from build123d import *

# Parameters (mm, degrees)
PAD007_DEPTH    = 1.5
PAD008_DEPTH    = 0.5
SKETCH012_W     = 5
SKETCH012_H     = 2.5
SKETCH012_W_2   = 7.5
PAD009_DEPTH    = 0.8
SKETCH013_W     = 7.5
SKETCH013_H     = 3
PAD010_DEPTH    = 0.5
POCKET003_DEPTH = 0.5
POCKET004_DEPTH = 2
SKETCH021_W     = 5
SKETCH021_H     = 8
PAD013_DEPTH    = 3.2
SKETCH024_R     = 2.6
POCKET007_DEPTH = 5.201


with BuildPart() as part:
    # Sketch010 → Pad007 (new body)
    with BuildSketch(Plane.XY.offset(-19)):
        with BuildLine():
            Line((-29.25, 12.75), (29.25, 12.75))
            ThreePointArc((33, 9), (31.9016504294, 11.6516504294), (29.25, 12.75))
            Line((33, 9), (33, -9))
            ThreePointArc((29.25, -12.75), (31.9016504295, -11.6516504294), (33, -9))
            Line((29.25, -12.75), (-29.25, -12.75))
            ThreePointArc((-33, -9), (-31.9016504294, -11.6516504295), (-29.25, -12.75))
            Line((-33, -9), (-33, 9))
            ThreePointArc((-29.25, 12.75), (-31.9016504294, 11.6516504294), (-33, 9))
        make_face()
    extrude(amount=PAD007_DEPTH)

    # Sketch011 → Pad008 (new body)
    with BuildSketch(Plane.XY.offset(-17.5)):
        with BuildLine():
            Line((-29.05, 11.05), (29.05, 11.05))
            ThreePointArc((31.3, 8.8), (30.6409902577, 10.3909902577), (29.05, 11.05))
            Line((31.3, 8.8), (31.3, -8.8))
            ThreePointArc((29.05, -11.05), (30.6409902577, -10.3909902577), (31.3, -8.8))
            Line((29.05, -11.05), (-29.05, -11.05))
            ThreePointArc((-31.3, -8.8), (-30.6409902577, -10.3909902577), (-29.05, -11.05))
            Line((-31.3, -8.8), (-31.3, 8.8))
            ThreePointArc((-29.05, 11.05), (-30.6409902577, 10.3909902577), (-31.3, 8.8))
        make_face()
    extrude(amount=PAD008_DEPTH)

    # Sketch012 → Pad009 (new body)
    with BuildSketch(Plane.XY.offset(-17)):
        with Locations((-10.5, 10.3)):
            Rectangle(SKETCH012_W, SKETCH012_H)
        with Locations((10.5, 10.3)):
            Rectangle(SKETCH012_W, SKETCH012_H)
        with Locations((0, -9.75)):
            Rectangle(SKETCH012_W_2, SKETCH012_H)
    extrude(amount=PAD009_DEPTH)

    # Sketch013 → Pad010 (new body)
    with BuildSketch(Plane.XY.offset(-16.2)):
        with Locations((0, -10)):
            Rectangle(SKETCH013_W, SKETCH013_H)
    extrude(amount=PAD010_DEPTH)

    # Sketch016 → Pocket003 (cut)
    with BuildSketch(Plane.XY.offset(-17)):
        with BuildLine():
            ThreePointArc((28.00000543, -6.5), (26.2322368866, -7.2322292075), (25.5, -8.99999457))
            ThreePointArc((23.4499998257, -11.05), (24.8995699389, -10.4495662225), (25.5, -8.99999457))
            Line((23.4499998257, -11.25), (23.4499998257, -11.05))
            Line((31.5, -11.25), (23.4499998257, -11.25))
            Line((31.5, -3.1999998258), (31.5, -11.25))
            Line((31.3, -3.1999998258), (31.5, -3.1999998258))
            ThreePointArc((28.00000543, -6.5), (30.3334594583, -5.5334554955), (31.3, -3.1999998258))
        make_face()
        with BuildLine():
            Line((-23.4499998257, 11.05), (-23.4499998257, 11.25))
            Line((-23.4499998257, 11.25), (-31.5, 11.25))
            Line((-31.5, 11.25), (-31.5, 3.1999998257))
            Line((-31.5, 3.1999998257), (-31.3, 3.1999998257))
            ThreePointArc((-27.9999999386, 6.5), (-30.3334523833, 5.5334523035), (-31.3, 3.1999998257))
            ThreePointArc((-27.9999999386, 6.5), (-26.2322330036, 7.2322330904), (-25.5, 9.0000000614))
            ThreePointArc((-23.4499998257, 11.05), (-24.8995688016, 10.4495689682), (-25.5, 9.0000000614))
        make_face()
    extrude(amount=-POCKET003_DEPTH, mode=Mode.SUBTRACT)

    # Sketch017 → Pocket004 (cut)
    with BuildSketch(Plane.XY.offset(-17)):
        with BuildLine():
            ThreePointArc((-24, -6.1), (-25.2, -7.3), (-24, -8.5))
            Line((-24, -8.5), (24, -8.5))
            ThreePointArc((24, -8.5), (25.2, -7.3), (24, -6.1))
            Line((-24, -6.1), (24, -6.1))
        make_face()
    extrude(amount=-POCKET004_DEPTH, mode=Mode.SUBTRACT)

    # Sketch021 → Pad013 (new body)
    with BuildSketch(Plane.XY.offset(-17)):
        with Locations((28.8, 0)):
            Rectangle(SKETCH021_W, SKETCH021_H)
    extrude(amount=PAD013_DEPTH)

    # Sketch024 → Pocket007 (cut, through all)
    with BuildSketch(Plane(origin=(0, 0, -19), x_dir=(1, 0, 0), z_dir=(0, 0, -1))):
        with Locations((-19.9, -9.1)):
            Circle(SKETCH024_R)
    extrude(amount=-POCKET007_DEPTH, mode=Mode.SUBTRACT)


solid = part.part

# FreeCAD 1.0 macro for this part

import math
import FreeCAD as App
import Part
import Sketcher
from FreeCAD import Vector
Q = App.Units.Quantity


def add_polygon(sketch, points):
    """Adds a closed chain of lines whose ends are joined by coincident constraints."""
    first, n = sketch.GeometryCount, len(points)
    for a, b in zip(points, points[1:] + points[:1]):
        sketch.addGeometry(Part.LineSegment(App.Vector(*a, 0), App.Vector(*b, 0)), False)
    for i in range(n):
        sketch.addConstraint(Sketcher.Constraint("Coincident", first + i, 2, first + (i + 1) % n, 1))

doc = App.newDocument("Part")
body = doc.addObject("PartDesign::Body", "Body")

# Sketch on XY plane
sketch1 = body.newObject("Sketcher::SketchObject", "Sketch")
sketch1.AttachmentSupport = (doc.getObject("XY_Plane"), [""])
sketch1.MapMode = "FlatFace"
sketch1.AttachmentOffset = App.Placement(Vector(0, 0, -19), App.Rotation())
sketch1.addGeometry(Part.LineSegment(Vector(29.2, 12.8, 0), Vector(-29.2, 12.8, 0)), False)
sketch1.addGeometry(Part.ArcOfCircle(Part.Circle(Vector(-29.2, 9, 0), Vector(0, 0, 1), 3.8), math.radians(90), math.radians(180)), False)
sketch1.addGeometry(Part.LineSegment(Vector(-33, 9, 0), Vector(-33, -9, 0)), False)
sketch1.addGeometry(Part.ArcOfCircle(Part.Circle(Vector(-29.2, -9, 0), Vector(0, 0, 1), 3.8), math.radians(180), math.radians(270)), False)
sketch1.addGeometry(Part.LineSegment(Vector(-29.2, -12.8, 0), Vector(29.2, -12.8, 0)), False)
sketch1.addGeometry(Part.ArcOfCircle(Part.Circle(Vector(29.2, -9, 0), Vector(0, 0, 1), 3.8), math.radians(-90), math.radians(0)), False)
sketch1.addGeometry(Part.LineSegment(Vector(33, -9, 0), Vector(33, 9, 0)), False)
sketch1.addGeometry(Part.ArcOfCircle(Part.Circle(Vector(29.2, 9, 0), Vector(0, 0, 1), 3.8), math.radians(0), math.radians(90)), False)
sketch1.addConstraint(Sketcher.Constraint("Tangent", 0, 2, 1, 1))
sketch1.addConstraint(Sketcher.Constraint("Tangent", 1, 2, 2, 1))
sketch1.addConstraint(Sketcher.Constraint("Tangent", 2, 2, 3, 1))
sketch1.addConstraint(Sketcher.Constraint("Tangent", 3, 2, 4, 1))
sketch1.addConstraint(Sketcher.Constraint("Tangent", 4, 2, 5, 1))
sketch1.addConstraint(Sketcher.Constraint("Tangent", 5, 2, 6, 1))
sketch1.addConstraint(Sketcher.Constraint("Tangent", 6, 2, 7, 1))
sketch1.addConstraint(Sketcher.Constraint("Tangent", 7, 2, 0, 1))
sketch1.addConstraint(Sketcher.Constraint("Horizontal", 0))
sketch1.addConstraint(Sketcher.Constraint("Vertical", 2))
sketch1.addConstraint(Sketcher.Constraint("Horizontal", 4))
sketch1.addConstraint(Sketcher.Constraint("Vertical", 6))
sketch1.addConstraint(Sketcher.Constraint("Equal", 1, 3))
sketch1.addConstraint(Sketcher.Constraint("Equal", 3, 5))
sketch1.addConstraint(Sketcher.Constraint("Equal", 5, 7))
sketch1.addConstraint(Sketcher.Constraint("Symmetric", 1, 3, 5, 3, -1, 1))
sketch1.addConstraint(Sketcher.Constraint("DistanceY", 2, 2, 2, 1, Q("18 mm")))
sketch1.addConstraint(Sketcher.Constraint("Radius", 1, Q("3.75 mm")))
sketch1.addConstraint(Sketcher.Constraint("DistanceX", 0, 2, 0, 1, Q("58.5 mm")))
pad1 = body.newObject("PartDesign::Pad", "Pad")
pad1.Profile = sketch1
pad1.Length = 1.5

# Sketch on XY plane
sketch2 = body.newObject("Sketcher::SketchObject", "Sketch001")
sketch2.AttachmentSupport = (doc.getObject("XY_Plane"), [""])
sketch2.MapMode = "FlatFace"
sketch2.AttachmentOffset = App.Placement(Vector(0, 0, -17.5), App.Rotation())
sketch2.addGeometry(Part.LineSegment(Vector(29.1, 11.1, 0), Vector(-29.1, 11.1, 0)), False)
sketch2.addGeometry(Part.ArcOfCircle(Part.Circle(Vector(-29.1, 8.8, 0), Vector(0, 0, 1), 2.2), math.radians(90), math.radians(180)), False)
sketch2.addGeometry(Part.LineSegment(Vector(-31.3, 8.8, 0), Vector(-31.3, -8.8, 0)), False)
sketch2.addGeometry(Part.ArcOfCircle(Part.Circle(Vector(-29.1, -8.8, 0), Vector(0, 0, 1), 2.2), math.radians(180), math.radians(270)), False)
sketch2.addGeometry(Part.LineSegment(Vector(-29.1, -11.1, 0), Vector(29.1, -11.1, 0)), False)
sketch2.addGeometry(Part.ArcOfCircle(Part.Circle(Vector(29.1, -8.8, 0), Vector(0, 0, 1), 2.2), math.radians(-90), math.radians(0)), False)
sketch2.addGeometry(Part.LineSegment(Vector(31.3, -8.8, 0), Vector(31.3, 8.8, 0)), False)
sketch2.addGeometry(Part.ArcOfCircle(Part.Circle(Vector(29.1, 8.8, 0), Vector(0, 0, 1), 2.2), math.radians(0), math.radians(90)), False)
sketch2.addConstraint(Sketcher.Constraint("Tangent", 0, 2, 1, 1))
sketch2.addConstraint(Sketcher.Constraint("Tangent", 1, 2, 2, 1))
sketch2.addConstraint(Sketcher.Constraint("Tangent", 2, 2, 3, 1))
sketch2.addConstraint(Sketcher.Constraint("Tangent", 3, 2, 4, 1))
sketch2.addConstraint(Sketcher.Constraint("Tangent", 4, 2, 5, 1))
sketch2.addConstraint(Sketcher.Constraint("Tangent", 5, 2, 6, 1))
sketch2.addConstraint(Sketcher.Constraint("Tangent", 6, 2, 7, 1))
sketch2.addConstraint(Sketcher.Constraint("Tangent", 7, 2, 0, 1))
sketch2.addConstraint(Sketcher.Constraint("Horizontal", 0))
sketch2.addConstraint(Sketcher.Constraint("Vertical", 2))
sketch2.addConstraint(Sketcher.Constraint("Horizontal", 4))
sketch2.addConstraint(Sketcher.Constraint("Vertical", 6))
sketch2.addConstraint(Sketcher.Constraint("Equal", 1, 3))
sketch2.addConstraint(Sketcher.Constraint("Equal", 3, 5))
sketch2.addConstraint(Sketcher.Constraint("Equal", 5, 7))
sketch2.addConstraint(Sketcher.Constraint("Symmetric", 1, 3, 5, 3, -1, 1))
sketch2.addConstraint(Sketcher.Constraint("Radius", 1, Q("2.25 mm")))
sketch2.addConstraint(Sketcher.Constraint("DistanceX", 0, 2, 0, 1, Q("58.1 mm")))
sketch2.addConstraint(Sketcher.Constraint("DistanceY", 2, 2, 2, 1, Q("17.6 mm")))
pad2 = body.newObject("PartDesign::Pad", "Pad001")
pad2.Profile = sketch2
pad2.Length = 0.5

# Sketch on XY plane
sketch3 = body.newObject("Sketcher::SketchObject", "Sketch002")
sketch3.AttachmentSupport = (doc.getObject("XY_Plane"), [""])
sketch3.MapMode = "FlatFace"
sketch3.AttachmentOffset = App.Placement(Vector(0, 0, -17), App.Rotation())
add_polygon(sketch3, [(-13, 11.6), (-13, 9.1), (-8, 9.1), (-8, 11.6)])  # lines 0-3
add_polygon(sketch3, [(8, 11.6), (8, 9.1), (13, 9.1), (13, 11.6)])  # lines 4-7
add_polygon(sketch3, [(-3.8, -8.5), (-3.8, -11), (3.8, -11), (3.8, -8.5)])  # lines 8-11
sketch3.addConstraint(Sketcher.Constraint("Vertical", 0))
sketch3.addConstraint(Sketcher.Constraint("Horizontal", 1))
sketch3.addConstraint(Sketcher.Constraint("Vertical", 2))
sketch3.addConstraint(Sketcher.Constraint("Horizontal", 3))
sketch3.addConstraint(Sketcher.Constraint("Vertical", 4))
sketch3.addConstraint(Sketcher.Constraint("Horizontal", 5))
sketch3.addConstraint(Sketcher.Constraint("Vertical", 6))
sketch3.addConstraint(Sketcher.Constraint("Horizontal", 7))
sketch3.addConstraint(Sketcher.Constraint("Vertical", 8))
sketch3.addConstraint(Sketcher.Constraint("Horizontal", 9))
sketch3.addConstraint(Sketcher.Constraint("Vertical", 10))
sketch3.addConstraint(Sketcher.Constraint("Horizontal", 11))
sketch3.addConstraint(Sketcher.Constraint("Symmetric", 1, 2, 4, 2, -2))
sketch3.addConstraint(Sketcher.Constraint("Symmetric", 3, 2, 6, 2, -2))
sketch3.addConstraint(Sketcher.Constraint("Equal", 6, 8))
sketch3.addConstraint(Sketcher.Constraint("DistanceX", 1, 1, 1, 2, Q("5 mm")))
sketch3.addConstraint(Sketcher.Constraint("DistanceX", 9, 1, 9, 2, Q("7.5 mm")))
sketch3.addConstraint(Sketcher.Constraint("DistanceY", 0, 2, 0, 1, Q("2.5 mm")))
sketch3.addConstraint(Sketcher.Constraint("DistanceX", 0, 2, -1, 1, Q("13 mm")))
sketch3.addConstraint(Sketcher.Constraint("DistanceY", 8, 2, -1, 1, Q("11 mm")))
sketch3.addConstraint(Sketcher.Constraint("DistanceY", -1, 1, 0, 2, Q("9.05 mm")))
sketch3.addConstraint(Sketcher.Constraint("DistanceX", 8, 2, -1, 1, Q("3.75 mm")))
pad3 = body.newObject("PartDesign::Pad", "Pad002")
pad3.Profile = sketch3
pad3.Length = 0.8

# Sketch on XY plane
sketch4 = body.newObject("Sketcher::SketchObject", "Sketch003")
sketch4.AttachmentSupport = (doc.getObject("XY_Plane"), [""])
sketch4.MapMode = "FlatFace"
sketch4.AttachmentOffset = App.Placement(Vector(0, 0, -16.2), App.Rotation())
add_polygon(sketch4, [(-3.8, -8.5), (-3.8, -11.5), (3.8, -11.5), (3.8, -8.5)])  # lines 0-3
sketch4.addConstraint(Sketcher.Constraint("Vertical", 0))
sketch4.addConstraint(Sketcher.Constraint("Horizontal", 1))
sketch4.addConstraint(Sketcher.Constraint("Vertical", 2))
sketch4.addConstraint(Sketcher.Constraint("Horizontal", 3))
sketch4.addConstraint(Sketcher.Constraint("DistanceY", 0, 2, 0, 1, Q("3 mm")))
sketch4.addConstraint(Sketcher.Constraint("DistanceX", 1, 1, 1, 2, Q("7.5 mm")))
sketch4.addConstraint(Sketcher.Constraint("DistanceY", 0, 2, -1, 1, Q("11.5 mm")))
sketch4.addConstraint(Sketcher.Constraint("DistanceX", 0, 2, -1, 1, Q("3.75 mm")))
pad4 = body.newObject("PartDesign::Pad", "Pad003")
pad4.Profile = sketch4
pad4.Length = 0.5

# Sketch on XY plane
sketch5 = body.newObject("Sketcher::SketchObject", "Sketch004")
sketch5.AttachmentSupport = (doc.getObject("XY_Plane"), [""])
sketch5.MapMode = "FlatFace"
sketch5.AttachmentOffset = App.Placement(Vector(0, 0, -17), App.Rotation())
sketch5.addGeometry(Part.ArcOfCircle(Part.Circle(Vector(28, -9, 0), Vector(0, 0, 1), 2.5), math.radians(90), math.radians(180)), False)
sketch5.addGeometry(Part.ArcOfCircle(Part.Circle(Vector(23.45, -9, 0), Vector(0, 0, 1), 2.05), math.radians(-90), math.radians(0)), False)
sketch5.addGeometry(Part.LineSegment(Vector(23.45, -11.05, 0), Vector(23.45, -11.25, 0)), False)
sketch5.addGeometry(Part.LineSegment(Vector(23.45, -11.25, 0), Vector(31.5, -11.25, 0)), False)
sketch5.addGeometry(Part.LineSegment(Vector(31.5, -11.25, 0), Vector(31.5, -3.2, 0)), False)
sketch5.addGeometry(Part.LineSegment(Vector(31.5, -3.2, 0), Vector(31.3, -3.2, 0)), False)
sketch5.addGeometry(Part.ArcOfCircle(Part.Circle(Vector(28, -3.2, 0), Vector(0, 0, 1), 3.3), math.radians(-90), math.radians(0)), False)
sketch5.addGeometry(Part.LineSegment(Vector(-23.45, 11.05, 0), Vector(-23.45, 11.25, 0)), False)
sketch5.addGeometry(Part.LineSegment(Vector(-23.45, 11.25, 0), Vector(-31.5, 11.25, 0)), False)
sketch5.addGeometry(Part.LineSegment(Vector(-31.5, 11.25, 0), Vector(-31.5, 3.2, 0)), False)
sketch5.addGeometry(Part.LineSegment(Vector(-31.5, 3.2, 0), Vector(-31.3, 3.2, 0)), False)
sketch5.addGeometry(Part.ArcOfCircle(Part.Circle(Vector(-28, 3.2, 0), Vector(0, 0, 1), 3.3), math.radians(90), math.radians(180)), False)
sketch5.addGeometry(Part.ArcOfCircle(Part.Circle(Vector(-28, 9, 0), Vector(0, 0, 1), 2.5), math.radians(-90), math.radians(0)), False)
sketch5.addGeometry(Part.ArcOfCircle(Part.Circle(Vector(-23.45, 9, 0), Vector(0, 0, 1), 2.05), math.radians(90), math.radians(180)), False)
sketch5.addConstraint(Sketcher.Constraint("Coincident", 0, 2, 1, 2))
sketch5.addConstraint(Sketcher.Constraint("Coincident", 1, 1, 2, 1))
sketch5.addConstraint(Sketcher.Constraint("Coincident", 2, 2, 3, 1))
sketch5.addConstraint(Sketcher.Constraint("Coincident", 3, 2, 4, 1))
sketch5.addConstraint(Sketcher.Constraint("Coincident", 4, 2, 5, 1))
sketch5.addConstraint(Sketcher.Constraint("Coincident", 5, 2, 6, 2))
sketch5.addConstraint(Sketcher.Constraint("Tangent", 6, 1, 0, 1))
sketch5.addConstraint(Sketcher.Constraint("Coincident", 7, 2, 8, 1))
sketch5.addConstraint(Sketcher.Constraint("Coincident", 8, 2, 9, 1))
sketch5.addConstraint(Sketcher.Constraint("Coincident", 9, 2, 10, 1))
sketch5.addConstraint(Sketcher.Constraint("Coincident", 10, 2, 11, 2))
sketch5.addConstraint(Sketcher.Constraint("Tangent", 11, 1, 12, 1))
sketch5.addConstraint(Sketcher.Constraint("Tangent", 12, 2, 13, 2))
sketch5.addConstraint(Sketcher.Constraint("Coincident", 13, 1, 7, 1))
sketch5.addConstraint(Sketcher.Constraint("Vertical", 2))
sketch5.addConstraint(Sketcher.Constraint("Horizontal", 3))
sketch5.addConstraint(Sketcher.Constraint("Vertical", 4))
sketch5.addConstraint(Sketcher.Constraint("Horizontal", 5))
sketch5.addConstraint(Sketcher.Constraint("Vertical", 7))
sketch5.addConstraint(Sketcher.Constraint("Horizontal", 8))
sketch5.addConstraint(Sketcher.Constraint("Vertical", 9))
sketch5.addConstraint(Sketcher.Constraint("Horizontal", 10))
sketch5.addConstraint(Sketcher.Constraint("Equal", 0, 12))
sketch5.addConstraint(Sketcher.Constraint("Symmetric", 0, 3, 12, 3, -1, 1))
sketch5.addConstraint(Sketcher.Constraint("Symmetric", 1, 3, 13, 3, -1, 1))
sketch5.addConstraint(Sketcher.Constraint("Symmetric", 2, 2, 7, 2, -1, 1))
sketch5.addConstraint(Sketcher.Constraint("Symmetric", 4, 2, 9, 2, -1, 1))
sketch5.addConstraint(Sketcher.Constraint("Horizontal", 12, 3, 13, 3))
sketch5.addConstraint(Sketcher.Constraint("Horizontal", 11, 3, 9, 2))
sketch5.addConstraint(Sketcher.Constraint("Vertical", 11, 3, 12, 3))
sketch5.addConstraint(Sketcher.Constraint("Vertical", 13, 3, 7, 2))
sketch5.addConstraint(Sketcher.Constraint("Equal", 5, 10))
sketch5.addConstraint(Sketcher.Constraint("Equal", 10, 2))
sketch5.addConstraint(Sketcher.Constraint("Radius", 0, Q("2.5 mm")))
sketch5.addConstraint(Sketcher.Constraint("Radius", 11, Q("3.3 mm")))
sketch5.addConstraint(Sketcher.Constraint("Radius", 13, Q("2.05 mm")))
sketch5.addConstraint(Sketcher.Constraint("DistanceX", 5, 2, 5, 1, Q("0.2 mm")))
sketch5.addConstraint(Sketcher.Constraint("DistanceX", -1, 1, 0, 3, Q("28 mm")))
sketch5.addConstraint(Sketcher.Constraint("DistanceY", 0, 3, -1, 1, Q("9 mm")))
sketch5.addConstraint(Sketcher.Constraint("Radius", 6, Q("3.299983 mm")))
sketch5.addConstraint(Sketcher.Constraint("DistanceY", 0, 2, -1, 1, Q("8.999995 mm")))
pocket1 = body.newObject("PartDesign::Pocket", "Pocket")
pocket1.Profile = sketch5
pocket1.Length = 0.5

# Sketch on XY plane
sketch6 = body.newObject("Sketcher::SketchObject", "Sketch005")
sketch6.AttachmentSupport = (doc.getObject("XY_Plane"), [""])
sketch6.MapMode = "FlatFace"
sketch6.AttachmentOffset = App.Placement(Vector(0, 0, -17), App.Rotation())
sketch6.addGeometry(Part.ArcOfCircle(Part.Circle(Vector(-24, -7.3, 0), Vector(0, 0, 1), 1.2), math.radians(90), math.radians(270)), False)
sketch6.addGeometry(Part.LineSegment(Vector(-24, -8.5, 0), Vector(24, -8.5, 0)), False)
sketch6.addGeometry(Part.ArcOfCircle(Part.Circle(Vector(24, -7.3, 0), Vector(0, 0, 1), 1.2), math.radians(-90), math.radians(90)), False)
sketch6.addGeometry(Part.LineSegment(Vector(24, -6.1, 0), Vector(-24, -6.1, 0)), False)
sketch6.addConstraint(Sketcher.Constraint("Tangent", 0, 2, 1, 1))
sketch6.addConstraint(Sketcher.Constraint("Tangent", 1, 2, 2, 1))
sketch6.addConstraint(Sketcher.Constraint("Tangent", 2, 2, 3, 1))
sketch6.addConstraint(Sketcher.Constraint("Tangent", 3, 2, 0, 1))
sketch6.addConstraint(Sketcher.Constraint("Horizontal", 1))
sketch6.addConstraint(Sketcher.Constraint("Horizontal", 3))
sketch6.addConstraint(Sketcher.Constraint("Radius", 0, Q("1.2 mm")))
sketch6.addConstraint(Sketcher.Constraint("DistanceX", 1, 1, 1, 2, Q("48 mm")))
sketch6.addConstraint(Sketcher.Constraint("DistanceX", 0, 3, -1, 1, Q("24 mm")))
sketch6.addConstraint(Sketcher.Constraint("DistanceY", 0, 3, -1, 1, Q("7.3 mm")))
pocket2 = body.newObject("PartDesign::Pocket", "Pocket001")
pocket2.Profile = sketch6
pocket2.Length = 2

# Sketch on XY plane
sketch7 = body.newObject("Sketcher::SketchObject", "Sketch006")
sketch7.AttachmentSupport = (doc.getObject("XY_Plane"), [""])
sketch7.MapMode = "FlatFace"
sketch7.AttachmentOffset = App.Placement(Vector(0, 0, -17), App.Rotation())
add_polygon(sketch7, [(26, 4), (26, -4), (31, -4), (31, 4)])  # lines 0-3
sketch7.addConstraint(Sketcher.Constraint("Vertical", 0))
sketch7.addConstraint(Sketcher.Constraint("Horizontal", 1))
sketch7.addConstraint(Sketcher.Constraint("Vertical", 2))
sketch7.addConstraint(Sketcher.Constraint("Horizontal", 3))
sketch7.addConstraint(Sketcher.Constraint("DistanceX", 1, 1, 1, 2, Q("5 mm")))
sketch7.addConstraint(Sketcher.Constraint("DistanceY", 0, 2, 0, 1, Q("8 mm")))
sketch7.addConstraint(Sketcher.Constraint("DistanceY", 0, 2, -1, 1, Q("4 mm")))
sketch7.addConstraint(Sketcher.Constraint("DistanceX", -1, 1, 0, 2, Q("26.3 mm")))
pad5 = body.newObject("PartDesign::Pad", "Pad004")
pad5.Profile = sketch7
pad5.Length = 3.2

# Sketch on XY plane
sketch8 = body.newObject("Sketcher::SketchObject", "Sketch007")
sketch8.AttachmentSupport = (doc.getObject("XY_Plane"), [""])
sketch8.MapMode = "FlatFace"
sketch8.AttachmentOffset = App.Placement(Vector(0, 0, -19), App.Rotation())
sketch8.addGeometry(Part.Circle(Vector(-19.9, 9.1, 0), Vector(0, 0, 1), 2.6), False)
sketch8.addConstraint(Sketcher.Constraint("Diameter", 0, Q("5.2 mm")))
sketch8.addConstraint(Sketcher.Constraint("DistanceX", 0, 3, -1, 1, Q("19.9 mm")))
sketch8.addConstraint(Sketcher.Constraint("DistanceY", -1, 1, 0, 3, Q("9.1 mm")))
pocket3 = body.newObject("PartDesign::Pocket", "Pocket002")
pocket3.Profile = sketch8
pocket3.Type = "ThroughAll"
pocket3.Reversed = True

doc.recompute()
